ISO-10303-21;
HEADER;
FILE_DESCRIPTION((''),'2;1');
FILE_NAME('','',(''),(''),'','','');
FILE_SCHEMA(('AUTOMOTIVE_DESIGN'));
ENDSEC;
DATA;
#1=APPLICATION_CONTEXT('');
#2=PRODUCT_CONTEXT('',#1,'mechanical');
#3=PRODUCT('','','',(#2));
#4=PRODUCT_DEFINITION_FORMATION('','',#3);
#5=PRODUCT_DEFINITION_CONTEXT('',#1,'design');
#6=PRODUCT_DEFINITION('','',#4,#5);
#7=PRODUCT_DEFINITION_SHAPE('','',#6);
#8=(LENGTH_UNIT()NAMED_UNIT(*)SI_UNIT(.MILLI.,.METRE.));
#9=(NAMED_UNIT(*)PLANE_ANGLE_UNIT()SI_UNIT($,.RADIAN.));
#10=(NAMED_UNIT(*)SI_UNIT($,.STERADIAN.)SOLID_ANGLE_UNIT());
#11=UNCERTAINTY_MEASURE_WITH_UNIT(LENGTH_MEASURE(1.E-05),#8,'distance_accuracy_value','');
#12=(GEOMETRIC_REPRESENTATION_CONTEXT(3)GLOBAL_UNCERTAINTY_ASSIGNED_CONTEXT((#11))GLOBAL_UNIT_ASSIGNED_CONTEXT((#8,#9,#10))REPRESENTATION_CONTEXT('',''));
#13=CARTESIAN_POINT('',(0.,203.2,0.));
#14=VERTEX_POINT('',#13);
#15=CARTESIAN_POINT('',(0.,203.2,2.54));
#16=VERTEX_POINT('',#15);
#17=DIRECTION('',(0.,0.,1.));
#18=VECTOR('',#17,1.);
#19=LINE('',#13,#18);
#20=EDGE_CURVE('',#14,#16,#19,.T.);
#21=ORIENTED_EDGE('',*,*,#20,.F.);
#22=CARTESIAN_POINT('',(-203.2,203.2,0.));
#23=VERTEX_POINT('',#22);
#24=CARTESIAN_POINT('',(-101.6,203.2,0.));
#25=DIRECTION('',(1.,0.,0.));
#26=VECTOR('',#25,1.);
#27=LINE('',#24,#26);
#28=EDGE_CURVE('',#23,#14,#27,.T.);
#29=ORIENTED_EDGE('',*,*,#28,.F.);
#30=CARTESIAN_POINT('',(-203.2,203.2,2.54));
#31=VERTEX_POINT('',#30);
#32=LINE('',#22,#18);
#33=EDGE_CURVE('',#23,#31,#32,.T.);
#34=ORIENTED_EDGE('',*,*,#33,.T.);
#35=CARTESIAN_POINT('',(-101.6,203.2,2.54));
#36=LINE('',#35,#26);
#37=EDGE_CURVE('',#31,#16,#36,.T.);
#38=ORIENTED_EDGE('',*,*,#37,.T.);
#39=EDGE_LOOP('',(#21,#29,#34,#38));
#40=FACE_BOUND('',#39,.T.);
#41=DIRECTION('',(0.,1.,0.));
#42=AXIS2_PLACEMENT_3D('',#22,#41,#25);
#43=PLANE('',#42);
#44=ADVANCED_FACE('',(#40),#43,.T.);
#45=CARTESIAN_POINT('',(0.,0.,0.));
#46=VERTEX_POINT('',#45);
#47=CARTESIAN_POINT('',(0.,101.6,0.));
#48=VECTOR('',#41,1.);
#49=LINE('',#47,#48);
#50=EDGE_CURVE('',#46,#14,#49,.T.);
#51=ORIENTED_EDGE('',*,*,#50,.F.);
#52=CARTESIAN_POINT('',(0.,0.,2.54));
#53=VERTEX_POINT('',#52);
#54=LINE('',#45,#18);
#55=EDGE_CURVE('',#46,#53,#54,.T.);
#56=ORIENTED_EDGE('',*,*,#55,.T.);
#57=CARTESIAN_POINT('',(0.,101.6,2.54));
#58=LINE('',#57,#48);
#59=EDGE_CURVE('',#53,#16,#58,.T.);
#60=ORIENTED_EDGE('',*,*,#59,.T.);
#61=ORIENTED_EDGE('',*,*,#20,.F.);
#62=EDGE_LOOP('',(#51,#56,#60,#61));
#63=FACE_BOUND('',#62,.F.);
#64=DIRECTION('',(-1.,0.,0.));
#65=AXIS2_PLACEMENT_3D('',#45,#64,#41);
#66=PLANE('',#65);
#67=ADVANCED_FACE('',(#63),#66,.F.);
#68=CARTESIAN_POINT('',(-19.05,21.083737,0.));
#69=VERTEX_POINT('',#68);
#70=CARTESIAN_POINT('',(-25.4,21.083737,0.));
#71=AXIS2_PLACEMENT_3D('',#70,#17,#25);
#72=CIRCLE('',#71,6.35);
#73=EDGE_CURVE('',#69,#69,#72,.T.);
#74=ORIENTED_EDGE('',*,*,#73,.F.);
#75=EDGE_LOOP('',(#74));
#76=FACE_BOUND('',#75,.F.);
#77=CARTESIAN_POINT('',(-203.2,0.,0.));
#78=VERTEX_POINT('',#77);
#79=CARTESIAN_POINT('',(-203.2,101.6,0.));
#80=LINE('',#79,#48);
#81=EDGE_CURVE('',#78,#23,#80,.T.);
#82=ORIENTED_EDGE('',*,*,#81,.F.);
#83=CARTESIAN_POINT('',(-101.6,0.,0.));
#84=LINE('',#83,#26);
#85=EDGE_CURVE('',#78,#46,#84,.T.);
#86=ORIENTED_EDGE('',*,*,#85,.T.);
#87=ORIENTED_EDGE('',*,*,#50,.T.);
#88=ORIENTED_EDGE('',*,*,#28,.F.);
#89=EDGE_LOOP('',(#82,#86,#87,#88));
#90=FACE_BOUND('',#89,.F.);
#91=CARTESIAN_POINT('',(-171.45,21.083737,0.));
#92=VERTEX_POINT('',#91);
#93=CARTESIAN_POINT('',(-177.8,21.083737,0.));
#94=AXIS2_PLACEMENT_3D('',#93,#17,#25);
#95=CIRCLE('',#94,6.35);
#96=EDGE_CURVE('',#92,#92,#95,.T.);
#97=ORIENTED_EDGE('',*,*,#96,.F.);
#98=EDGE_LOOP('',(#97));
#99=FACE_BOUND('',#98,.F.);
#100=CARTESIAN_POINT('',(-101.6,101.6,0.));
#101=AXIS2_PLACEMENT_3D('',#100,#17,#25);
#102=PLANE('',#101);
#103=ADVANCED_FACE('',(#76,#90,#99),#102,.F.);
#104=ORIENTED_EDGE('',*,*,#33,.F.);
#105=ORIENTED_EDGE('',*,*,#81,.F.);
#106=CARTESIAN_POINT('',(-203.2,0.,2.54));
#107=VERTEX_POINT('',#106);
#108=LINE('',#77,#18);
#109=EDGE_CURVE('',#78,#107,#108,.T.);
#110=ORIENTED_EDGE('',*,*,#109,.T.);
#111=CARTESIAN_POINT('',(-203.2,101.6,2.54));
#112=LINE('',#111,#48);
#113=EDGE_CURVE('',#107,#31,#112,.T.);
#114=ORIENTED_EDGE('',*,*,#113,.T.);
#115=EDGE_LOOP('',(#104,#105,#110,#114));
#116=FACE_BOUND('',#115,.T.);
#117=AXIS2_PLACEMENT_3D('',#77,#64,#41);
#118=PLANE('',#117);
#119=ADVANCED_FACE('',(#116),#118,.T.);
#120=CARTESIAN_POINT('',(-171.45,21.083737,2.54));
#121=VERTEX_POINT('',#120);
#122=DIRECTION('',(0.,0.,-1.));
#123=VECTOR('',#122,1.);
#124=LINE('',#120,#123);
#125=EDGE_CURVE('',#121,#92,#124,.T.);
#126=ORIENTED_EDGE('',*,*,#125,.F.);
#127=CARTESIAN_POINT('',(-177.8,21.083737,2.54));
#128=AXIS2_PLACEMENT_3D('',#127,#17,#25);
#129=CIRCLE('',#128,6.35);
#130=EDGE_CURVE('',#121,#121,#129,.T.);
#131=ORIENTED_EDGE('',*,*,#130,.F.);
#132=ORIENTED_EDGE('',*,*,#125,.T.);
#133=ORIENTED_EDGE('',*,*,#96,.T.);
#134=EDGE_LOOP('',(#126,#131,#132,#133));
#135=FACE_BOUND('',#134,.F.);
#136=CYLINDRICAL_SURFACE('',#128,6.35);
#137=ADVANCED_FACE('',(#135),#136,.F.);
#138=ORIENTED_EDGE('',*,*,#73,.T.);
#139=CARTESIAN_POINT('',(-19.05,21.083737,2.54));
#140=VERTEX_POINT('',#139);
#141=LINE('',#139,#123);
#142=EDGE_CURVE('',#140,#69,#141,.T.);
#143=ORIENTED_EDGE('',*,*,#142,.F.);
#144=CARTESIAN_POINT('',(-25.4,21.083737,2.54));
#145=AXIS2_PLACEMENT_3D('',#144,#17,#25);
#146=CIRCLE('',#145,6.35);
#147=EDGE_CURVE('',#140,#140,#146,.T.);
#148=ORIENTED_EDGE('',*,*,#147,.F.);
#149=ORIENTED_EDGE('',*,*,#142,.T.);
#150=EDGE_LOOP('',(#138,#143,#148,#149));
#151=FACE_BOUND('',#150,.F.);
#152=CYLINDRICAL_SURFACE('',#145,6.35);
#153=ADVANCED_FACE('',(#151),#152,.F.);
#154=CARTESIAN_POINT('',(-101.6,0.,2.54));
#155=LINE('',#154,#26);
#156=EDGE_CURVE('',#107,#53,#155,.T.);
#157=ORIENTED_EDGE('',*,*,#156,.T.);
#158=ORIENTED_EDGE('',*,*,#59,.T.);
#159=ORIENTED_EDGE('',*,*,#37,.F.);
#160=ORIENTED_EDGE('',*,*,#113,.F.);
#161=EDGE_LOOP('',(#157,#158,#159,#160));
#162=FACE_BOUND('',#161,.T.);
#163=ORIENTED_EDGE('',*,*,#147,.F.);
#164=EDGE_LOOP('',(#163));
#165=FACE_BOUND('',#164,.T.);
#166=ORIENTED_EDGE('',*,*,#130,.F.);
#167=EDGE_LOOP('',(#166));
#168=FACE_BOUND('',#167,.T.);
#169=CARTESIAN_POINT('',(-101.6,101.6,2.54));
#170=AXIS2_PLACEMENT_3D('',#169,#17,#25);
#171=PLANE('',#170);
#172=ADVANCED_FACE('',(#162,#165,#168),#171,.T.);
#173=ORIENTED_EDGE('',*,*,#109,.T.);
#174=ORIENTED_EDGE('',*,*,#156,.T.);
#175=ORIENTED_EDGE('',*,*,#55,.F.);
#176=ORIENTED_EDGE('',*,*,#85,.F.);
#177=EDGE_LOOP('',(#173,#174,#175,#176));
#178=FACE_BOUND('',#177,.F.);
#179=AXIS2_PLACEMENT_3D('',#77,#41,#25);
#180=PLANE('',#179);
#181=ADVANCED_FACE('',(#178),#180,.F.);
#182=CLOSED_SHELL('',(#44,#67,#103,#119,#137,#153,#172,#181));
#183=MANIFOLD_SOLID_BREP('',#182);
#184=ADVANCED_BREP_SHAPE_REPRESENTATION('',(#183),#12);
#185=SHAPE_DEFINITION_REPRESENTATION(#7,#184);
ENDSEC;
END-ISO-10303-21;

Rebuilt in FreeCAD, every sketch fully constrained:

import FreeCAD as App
import Part
import Sketcher
from FreeCAD import Vector
Q = App.Units.Quantity


def add_polygon(sketch, points):
    """Adds a closed chain of lines whose ends are joined by coincident constraints."""
    first, n = sketch.GeometryCount, len(points)
    for a, b in zip(points, points[1:] + points[:1]):
        sketch.addGeometry(Part.LineSegment(App.Vector(*a, 0), App.Vector(*b, 0)), False)
    for i in range(n):
        sketch.addConstraint(Sketcher.Constraint("Coincident", first + i, 2, first + (i + 1) % n, 1))

doc = App.newDocument("Part")
body = doc.addObject("PartDesign::Body", "Body")

sketch1 = body.newObject("Sketcher::SketchObject", "Sketch")
sketch1.AttachmentSupport = (doc.getObject("XY_Plane"), [""])
sketch1.MapMode = "FlatFace"
add_polygon(sketch1, [(-203.2, 203.2), (-203.2, 0), (0, 0), (0, 203.2)])
sketch1.addConstraint([
    Sketcher.Constraint("Vertical", 0),
    Sketcher.Constraint("Horizontal", 1),
    Sketcher.Constraint("Vertical", 2),
    Sketcher.Constraint("Horizontal", 3),
    Sketcher.Constraint("Coincident", 1, 2, -1, 1),
    Sketcher.Constraint("Equal", 3, 0),
    Sketcher.Constraint("DistanceX", 1, 1, 1, 2, Q("8 in")),
])
pad1 = body.newObject("PartDesign::Pad", "Pad")
pad1.Profile = sketch1
pad1.Length = Q("0.1 in")

sketch2 = body.newObject("Sketcher::SketchObject", "Sketch001")
sketch2.AttachmentSupport = (doc.getObject("XY_Plane"), [""])
sketch2.MapMode = "FlatFace"
sketch2.AttachmentOffset = App.Placement(Vector(0, 0, 0.1 * 25.4), App.Rotation())
sketch2.addGeometry(Part.Circle(Vector(-177.8, 21.083737, 0), Vector(0, 0, 1), 6.35), False)
sketch2.addConstraint([
    Sketcher.Constraint("Diameter", 0, Q("0.5 in")),
    Sketcher.Constraint("DistanceX", 0, 3, -1, 1, Q("7 in")),
    Sketcher.Constraint("DistanceY", -1, 1, 0, 3, 21.083737),
])
pocket1 = body.newObject("PartDesign::Pocket", "Pocket")
pocket1.Profile = sketch2
pocket1.Length = Q("1 in")

sketch3 = body.newObject("Sketcher::SketchObject", "Sketch002")
sketch3.AttachmentSupport = (doc.getObject("XY_Plane"), [""])
sketch3.MapMode = "FlatFace"
sketch3.AttachmentOffset = App.Placement(Vector(0, 0, 0.1 * 25.4), App.Rotation())
sketch3.addGeometry([
    Part.Circle(Vector(-177.8, 21.083737, 0), Vector(0, 0, 1), 6.35),
    Part.Circle(Vector(-25.4, 21.083737, 0), Vector(0, 0, 1), 6.35),
], False)
sketch3.addConstraint([
    Sketcher.Constraint("Equal", 0, 1),
    Sketcher.Constraint("Horizontal", 0, 3, 1, 3),
    Sketcher.Constraint("Diameter", 0, Q("0.5 in")),
    Sketcher.Constraint("DistanceX", 0, 3, -1, 1, Q("7 in")),
    Sketcher.Constraint("DistanceX", 1, 3, -1, 1, Q("1 in")),
    Sketcher.Constraint("DistanceY", -1, 1, 0, 3, 21.083737),
])
pocket2 = body.newObject("PartDesign::Pocket", "Pocket001")
pocket2.Profile = sketch3
pocket2.Length = Q("1 in")

doc.recompute()
